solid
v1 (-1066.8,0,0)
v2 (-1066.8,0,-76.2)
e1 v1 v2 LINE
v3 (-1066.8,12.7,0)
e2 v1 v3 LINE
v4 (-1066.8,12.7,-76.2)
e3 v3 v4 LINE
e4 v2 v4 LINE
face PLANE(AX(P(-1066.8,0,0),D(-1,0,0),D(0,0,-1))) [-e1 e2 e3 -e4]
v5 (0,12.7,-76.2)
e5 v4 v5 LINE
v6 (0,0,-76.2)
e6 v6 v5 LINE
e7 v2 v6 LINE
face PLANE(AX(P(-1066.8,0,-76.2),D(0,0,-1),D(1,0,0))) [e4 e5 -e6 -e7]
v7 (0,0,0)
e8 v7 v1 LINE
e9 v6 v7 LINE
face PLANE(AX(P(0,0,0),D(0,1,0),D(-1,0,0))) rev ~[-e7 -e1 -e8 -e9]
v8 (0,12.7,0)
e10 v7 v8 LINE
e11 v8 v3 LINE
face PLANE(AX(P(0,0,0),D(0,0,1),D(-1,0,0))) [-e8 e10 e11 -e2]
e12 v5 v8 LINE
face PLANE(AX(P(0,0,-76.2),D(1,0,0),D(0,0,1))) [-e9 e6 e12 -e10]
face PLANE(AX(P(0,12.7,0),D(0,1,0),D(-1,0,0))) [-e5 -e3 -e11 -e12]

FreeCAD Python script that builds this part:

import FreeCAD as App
import Part
import Sketcher
Q = App.Units.Quantity


def add_polygon(sketch, points):
    """Adds a closed chain of lines whose ends are joined by coincident constraints."""
    first, n = sketch.GeometryCount, len(points)
    for a, b in zip(points, points[1:] + points[:1]):
        sketch.addGeometry(Part.LineSegment(App.Vector(*a, 0), App.Vector(*b, 0)), False)
    for i in range(n):
        sketch.addConstraint(Sketcher.Constraint("Coincident", first + i, 2, first + (i + 1) % n, 1))

doc = App.newDocument("Part")
body = doc.addObject("PartDesign::Body", "Body")

sketch1 = body.newObject("Sketcher::SketchObject", "Sketch")
sketch1.AttachmentSupport = (doc.getObject("XZ_Plane"), [""])
sketch1.MapMode = "FlatFace"
add_polygon(sketch1, [(-1067, 0), (0, 0), (0, -76), (-1067, -76)])
sketch1.addConstraint([
    Sketcher.Constraint("Horizontal", 0),
    Sketcher.Constraint("Vertical", 1),
    Sketcher.Constraint("Horizontal", 2),
    Sketcher.Constraint("Vertical", 3),
    Sketcher.Constraint("Coincident", 0, 2, -1, 1),
    Sketcher.Constraint("DistanceX", 0, 1, 0, 2, Q("42 in")),
    Sketcher.Constraint("DistanceY", 1, 2, 1, 1, Q("3 in")),
])
pad1 = body.newObject("PartDesign::Pad", "Pad")
pad1.Profile = sketch1
pad1.Length = Q("0.5 in")
pad1.Reversed = True

doc.recompute()
